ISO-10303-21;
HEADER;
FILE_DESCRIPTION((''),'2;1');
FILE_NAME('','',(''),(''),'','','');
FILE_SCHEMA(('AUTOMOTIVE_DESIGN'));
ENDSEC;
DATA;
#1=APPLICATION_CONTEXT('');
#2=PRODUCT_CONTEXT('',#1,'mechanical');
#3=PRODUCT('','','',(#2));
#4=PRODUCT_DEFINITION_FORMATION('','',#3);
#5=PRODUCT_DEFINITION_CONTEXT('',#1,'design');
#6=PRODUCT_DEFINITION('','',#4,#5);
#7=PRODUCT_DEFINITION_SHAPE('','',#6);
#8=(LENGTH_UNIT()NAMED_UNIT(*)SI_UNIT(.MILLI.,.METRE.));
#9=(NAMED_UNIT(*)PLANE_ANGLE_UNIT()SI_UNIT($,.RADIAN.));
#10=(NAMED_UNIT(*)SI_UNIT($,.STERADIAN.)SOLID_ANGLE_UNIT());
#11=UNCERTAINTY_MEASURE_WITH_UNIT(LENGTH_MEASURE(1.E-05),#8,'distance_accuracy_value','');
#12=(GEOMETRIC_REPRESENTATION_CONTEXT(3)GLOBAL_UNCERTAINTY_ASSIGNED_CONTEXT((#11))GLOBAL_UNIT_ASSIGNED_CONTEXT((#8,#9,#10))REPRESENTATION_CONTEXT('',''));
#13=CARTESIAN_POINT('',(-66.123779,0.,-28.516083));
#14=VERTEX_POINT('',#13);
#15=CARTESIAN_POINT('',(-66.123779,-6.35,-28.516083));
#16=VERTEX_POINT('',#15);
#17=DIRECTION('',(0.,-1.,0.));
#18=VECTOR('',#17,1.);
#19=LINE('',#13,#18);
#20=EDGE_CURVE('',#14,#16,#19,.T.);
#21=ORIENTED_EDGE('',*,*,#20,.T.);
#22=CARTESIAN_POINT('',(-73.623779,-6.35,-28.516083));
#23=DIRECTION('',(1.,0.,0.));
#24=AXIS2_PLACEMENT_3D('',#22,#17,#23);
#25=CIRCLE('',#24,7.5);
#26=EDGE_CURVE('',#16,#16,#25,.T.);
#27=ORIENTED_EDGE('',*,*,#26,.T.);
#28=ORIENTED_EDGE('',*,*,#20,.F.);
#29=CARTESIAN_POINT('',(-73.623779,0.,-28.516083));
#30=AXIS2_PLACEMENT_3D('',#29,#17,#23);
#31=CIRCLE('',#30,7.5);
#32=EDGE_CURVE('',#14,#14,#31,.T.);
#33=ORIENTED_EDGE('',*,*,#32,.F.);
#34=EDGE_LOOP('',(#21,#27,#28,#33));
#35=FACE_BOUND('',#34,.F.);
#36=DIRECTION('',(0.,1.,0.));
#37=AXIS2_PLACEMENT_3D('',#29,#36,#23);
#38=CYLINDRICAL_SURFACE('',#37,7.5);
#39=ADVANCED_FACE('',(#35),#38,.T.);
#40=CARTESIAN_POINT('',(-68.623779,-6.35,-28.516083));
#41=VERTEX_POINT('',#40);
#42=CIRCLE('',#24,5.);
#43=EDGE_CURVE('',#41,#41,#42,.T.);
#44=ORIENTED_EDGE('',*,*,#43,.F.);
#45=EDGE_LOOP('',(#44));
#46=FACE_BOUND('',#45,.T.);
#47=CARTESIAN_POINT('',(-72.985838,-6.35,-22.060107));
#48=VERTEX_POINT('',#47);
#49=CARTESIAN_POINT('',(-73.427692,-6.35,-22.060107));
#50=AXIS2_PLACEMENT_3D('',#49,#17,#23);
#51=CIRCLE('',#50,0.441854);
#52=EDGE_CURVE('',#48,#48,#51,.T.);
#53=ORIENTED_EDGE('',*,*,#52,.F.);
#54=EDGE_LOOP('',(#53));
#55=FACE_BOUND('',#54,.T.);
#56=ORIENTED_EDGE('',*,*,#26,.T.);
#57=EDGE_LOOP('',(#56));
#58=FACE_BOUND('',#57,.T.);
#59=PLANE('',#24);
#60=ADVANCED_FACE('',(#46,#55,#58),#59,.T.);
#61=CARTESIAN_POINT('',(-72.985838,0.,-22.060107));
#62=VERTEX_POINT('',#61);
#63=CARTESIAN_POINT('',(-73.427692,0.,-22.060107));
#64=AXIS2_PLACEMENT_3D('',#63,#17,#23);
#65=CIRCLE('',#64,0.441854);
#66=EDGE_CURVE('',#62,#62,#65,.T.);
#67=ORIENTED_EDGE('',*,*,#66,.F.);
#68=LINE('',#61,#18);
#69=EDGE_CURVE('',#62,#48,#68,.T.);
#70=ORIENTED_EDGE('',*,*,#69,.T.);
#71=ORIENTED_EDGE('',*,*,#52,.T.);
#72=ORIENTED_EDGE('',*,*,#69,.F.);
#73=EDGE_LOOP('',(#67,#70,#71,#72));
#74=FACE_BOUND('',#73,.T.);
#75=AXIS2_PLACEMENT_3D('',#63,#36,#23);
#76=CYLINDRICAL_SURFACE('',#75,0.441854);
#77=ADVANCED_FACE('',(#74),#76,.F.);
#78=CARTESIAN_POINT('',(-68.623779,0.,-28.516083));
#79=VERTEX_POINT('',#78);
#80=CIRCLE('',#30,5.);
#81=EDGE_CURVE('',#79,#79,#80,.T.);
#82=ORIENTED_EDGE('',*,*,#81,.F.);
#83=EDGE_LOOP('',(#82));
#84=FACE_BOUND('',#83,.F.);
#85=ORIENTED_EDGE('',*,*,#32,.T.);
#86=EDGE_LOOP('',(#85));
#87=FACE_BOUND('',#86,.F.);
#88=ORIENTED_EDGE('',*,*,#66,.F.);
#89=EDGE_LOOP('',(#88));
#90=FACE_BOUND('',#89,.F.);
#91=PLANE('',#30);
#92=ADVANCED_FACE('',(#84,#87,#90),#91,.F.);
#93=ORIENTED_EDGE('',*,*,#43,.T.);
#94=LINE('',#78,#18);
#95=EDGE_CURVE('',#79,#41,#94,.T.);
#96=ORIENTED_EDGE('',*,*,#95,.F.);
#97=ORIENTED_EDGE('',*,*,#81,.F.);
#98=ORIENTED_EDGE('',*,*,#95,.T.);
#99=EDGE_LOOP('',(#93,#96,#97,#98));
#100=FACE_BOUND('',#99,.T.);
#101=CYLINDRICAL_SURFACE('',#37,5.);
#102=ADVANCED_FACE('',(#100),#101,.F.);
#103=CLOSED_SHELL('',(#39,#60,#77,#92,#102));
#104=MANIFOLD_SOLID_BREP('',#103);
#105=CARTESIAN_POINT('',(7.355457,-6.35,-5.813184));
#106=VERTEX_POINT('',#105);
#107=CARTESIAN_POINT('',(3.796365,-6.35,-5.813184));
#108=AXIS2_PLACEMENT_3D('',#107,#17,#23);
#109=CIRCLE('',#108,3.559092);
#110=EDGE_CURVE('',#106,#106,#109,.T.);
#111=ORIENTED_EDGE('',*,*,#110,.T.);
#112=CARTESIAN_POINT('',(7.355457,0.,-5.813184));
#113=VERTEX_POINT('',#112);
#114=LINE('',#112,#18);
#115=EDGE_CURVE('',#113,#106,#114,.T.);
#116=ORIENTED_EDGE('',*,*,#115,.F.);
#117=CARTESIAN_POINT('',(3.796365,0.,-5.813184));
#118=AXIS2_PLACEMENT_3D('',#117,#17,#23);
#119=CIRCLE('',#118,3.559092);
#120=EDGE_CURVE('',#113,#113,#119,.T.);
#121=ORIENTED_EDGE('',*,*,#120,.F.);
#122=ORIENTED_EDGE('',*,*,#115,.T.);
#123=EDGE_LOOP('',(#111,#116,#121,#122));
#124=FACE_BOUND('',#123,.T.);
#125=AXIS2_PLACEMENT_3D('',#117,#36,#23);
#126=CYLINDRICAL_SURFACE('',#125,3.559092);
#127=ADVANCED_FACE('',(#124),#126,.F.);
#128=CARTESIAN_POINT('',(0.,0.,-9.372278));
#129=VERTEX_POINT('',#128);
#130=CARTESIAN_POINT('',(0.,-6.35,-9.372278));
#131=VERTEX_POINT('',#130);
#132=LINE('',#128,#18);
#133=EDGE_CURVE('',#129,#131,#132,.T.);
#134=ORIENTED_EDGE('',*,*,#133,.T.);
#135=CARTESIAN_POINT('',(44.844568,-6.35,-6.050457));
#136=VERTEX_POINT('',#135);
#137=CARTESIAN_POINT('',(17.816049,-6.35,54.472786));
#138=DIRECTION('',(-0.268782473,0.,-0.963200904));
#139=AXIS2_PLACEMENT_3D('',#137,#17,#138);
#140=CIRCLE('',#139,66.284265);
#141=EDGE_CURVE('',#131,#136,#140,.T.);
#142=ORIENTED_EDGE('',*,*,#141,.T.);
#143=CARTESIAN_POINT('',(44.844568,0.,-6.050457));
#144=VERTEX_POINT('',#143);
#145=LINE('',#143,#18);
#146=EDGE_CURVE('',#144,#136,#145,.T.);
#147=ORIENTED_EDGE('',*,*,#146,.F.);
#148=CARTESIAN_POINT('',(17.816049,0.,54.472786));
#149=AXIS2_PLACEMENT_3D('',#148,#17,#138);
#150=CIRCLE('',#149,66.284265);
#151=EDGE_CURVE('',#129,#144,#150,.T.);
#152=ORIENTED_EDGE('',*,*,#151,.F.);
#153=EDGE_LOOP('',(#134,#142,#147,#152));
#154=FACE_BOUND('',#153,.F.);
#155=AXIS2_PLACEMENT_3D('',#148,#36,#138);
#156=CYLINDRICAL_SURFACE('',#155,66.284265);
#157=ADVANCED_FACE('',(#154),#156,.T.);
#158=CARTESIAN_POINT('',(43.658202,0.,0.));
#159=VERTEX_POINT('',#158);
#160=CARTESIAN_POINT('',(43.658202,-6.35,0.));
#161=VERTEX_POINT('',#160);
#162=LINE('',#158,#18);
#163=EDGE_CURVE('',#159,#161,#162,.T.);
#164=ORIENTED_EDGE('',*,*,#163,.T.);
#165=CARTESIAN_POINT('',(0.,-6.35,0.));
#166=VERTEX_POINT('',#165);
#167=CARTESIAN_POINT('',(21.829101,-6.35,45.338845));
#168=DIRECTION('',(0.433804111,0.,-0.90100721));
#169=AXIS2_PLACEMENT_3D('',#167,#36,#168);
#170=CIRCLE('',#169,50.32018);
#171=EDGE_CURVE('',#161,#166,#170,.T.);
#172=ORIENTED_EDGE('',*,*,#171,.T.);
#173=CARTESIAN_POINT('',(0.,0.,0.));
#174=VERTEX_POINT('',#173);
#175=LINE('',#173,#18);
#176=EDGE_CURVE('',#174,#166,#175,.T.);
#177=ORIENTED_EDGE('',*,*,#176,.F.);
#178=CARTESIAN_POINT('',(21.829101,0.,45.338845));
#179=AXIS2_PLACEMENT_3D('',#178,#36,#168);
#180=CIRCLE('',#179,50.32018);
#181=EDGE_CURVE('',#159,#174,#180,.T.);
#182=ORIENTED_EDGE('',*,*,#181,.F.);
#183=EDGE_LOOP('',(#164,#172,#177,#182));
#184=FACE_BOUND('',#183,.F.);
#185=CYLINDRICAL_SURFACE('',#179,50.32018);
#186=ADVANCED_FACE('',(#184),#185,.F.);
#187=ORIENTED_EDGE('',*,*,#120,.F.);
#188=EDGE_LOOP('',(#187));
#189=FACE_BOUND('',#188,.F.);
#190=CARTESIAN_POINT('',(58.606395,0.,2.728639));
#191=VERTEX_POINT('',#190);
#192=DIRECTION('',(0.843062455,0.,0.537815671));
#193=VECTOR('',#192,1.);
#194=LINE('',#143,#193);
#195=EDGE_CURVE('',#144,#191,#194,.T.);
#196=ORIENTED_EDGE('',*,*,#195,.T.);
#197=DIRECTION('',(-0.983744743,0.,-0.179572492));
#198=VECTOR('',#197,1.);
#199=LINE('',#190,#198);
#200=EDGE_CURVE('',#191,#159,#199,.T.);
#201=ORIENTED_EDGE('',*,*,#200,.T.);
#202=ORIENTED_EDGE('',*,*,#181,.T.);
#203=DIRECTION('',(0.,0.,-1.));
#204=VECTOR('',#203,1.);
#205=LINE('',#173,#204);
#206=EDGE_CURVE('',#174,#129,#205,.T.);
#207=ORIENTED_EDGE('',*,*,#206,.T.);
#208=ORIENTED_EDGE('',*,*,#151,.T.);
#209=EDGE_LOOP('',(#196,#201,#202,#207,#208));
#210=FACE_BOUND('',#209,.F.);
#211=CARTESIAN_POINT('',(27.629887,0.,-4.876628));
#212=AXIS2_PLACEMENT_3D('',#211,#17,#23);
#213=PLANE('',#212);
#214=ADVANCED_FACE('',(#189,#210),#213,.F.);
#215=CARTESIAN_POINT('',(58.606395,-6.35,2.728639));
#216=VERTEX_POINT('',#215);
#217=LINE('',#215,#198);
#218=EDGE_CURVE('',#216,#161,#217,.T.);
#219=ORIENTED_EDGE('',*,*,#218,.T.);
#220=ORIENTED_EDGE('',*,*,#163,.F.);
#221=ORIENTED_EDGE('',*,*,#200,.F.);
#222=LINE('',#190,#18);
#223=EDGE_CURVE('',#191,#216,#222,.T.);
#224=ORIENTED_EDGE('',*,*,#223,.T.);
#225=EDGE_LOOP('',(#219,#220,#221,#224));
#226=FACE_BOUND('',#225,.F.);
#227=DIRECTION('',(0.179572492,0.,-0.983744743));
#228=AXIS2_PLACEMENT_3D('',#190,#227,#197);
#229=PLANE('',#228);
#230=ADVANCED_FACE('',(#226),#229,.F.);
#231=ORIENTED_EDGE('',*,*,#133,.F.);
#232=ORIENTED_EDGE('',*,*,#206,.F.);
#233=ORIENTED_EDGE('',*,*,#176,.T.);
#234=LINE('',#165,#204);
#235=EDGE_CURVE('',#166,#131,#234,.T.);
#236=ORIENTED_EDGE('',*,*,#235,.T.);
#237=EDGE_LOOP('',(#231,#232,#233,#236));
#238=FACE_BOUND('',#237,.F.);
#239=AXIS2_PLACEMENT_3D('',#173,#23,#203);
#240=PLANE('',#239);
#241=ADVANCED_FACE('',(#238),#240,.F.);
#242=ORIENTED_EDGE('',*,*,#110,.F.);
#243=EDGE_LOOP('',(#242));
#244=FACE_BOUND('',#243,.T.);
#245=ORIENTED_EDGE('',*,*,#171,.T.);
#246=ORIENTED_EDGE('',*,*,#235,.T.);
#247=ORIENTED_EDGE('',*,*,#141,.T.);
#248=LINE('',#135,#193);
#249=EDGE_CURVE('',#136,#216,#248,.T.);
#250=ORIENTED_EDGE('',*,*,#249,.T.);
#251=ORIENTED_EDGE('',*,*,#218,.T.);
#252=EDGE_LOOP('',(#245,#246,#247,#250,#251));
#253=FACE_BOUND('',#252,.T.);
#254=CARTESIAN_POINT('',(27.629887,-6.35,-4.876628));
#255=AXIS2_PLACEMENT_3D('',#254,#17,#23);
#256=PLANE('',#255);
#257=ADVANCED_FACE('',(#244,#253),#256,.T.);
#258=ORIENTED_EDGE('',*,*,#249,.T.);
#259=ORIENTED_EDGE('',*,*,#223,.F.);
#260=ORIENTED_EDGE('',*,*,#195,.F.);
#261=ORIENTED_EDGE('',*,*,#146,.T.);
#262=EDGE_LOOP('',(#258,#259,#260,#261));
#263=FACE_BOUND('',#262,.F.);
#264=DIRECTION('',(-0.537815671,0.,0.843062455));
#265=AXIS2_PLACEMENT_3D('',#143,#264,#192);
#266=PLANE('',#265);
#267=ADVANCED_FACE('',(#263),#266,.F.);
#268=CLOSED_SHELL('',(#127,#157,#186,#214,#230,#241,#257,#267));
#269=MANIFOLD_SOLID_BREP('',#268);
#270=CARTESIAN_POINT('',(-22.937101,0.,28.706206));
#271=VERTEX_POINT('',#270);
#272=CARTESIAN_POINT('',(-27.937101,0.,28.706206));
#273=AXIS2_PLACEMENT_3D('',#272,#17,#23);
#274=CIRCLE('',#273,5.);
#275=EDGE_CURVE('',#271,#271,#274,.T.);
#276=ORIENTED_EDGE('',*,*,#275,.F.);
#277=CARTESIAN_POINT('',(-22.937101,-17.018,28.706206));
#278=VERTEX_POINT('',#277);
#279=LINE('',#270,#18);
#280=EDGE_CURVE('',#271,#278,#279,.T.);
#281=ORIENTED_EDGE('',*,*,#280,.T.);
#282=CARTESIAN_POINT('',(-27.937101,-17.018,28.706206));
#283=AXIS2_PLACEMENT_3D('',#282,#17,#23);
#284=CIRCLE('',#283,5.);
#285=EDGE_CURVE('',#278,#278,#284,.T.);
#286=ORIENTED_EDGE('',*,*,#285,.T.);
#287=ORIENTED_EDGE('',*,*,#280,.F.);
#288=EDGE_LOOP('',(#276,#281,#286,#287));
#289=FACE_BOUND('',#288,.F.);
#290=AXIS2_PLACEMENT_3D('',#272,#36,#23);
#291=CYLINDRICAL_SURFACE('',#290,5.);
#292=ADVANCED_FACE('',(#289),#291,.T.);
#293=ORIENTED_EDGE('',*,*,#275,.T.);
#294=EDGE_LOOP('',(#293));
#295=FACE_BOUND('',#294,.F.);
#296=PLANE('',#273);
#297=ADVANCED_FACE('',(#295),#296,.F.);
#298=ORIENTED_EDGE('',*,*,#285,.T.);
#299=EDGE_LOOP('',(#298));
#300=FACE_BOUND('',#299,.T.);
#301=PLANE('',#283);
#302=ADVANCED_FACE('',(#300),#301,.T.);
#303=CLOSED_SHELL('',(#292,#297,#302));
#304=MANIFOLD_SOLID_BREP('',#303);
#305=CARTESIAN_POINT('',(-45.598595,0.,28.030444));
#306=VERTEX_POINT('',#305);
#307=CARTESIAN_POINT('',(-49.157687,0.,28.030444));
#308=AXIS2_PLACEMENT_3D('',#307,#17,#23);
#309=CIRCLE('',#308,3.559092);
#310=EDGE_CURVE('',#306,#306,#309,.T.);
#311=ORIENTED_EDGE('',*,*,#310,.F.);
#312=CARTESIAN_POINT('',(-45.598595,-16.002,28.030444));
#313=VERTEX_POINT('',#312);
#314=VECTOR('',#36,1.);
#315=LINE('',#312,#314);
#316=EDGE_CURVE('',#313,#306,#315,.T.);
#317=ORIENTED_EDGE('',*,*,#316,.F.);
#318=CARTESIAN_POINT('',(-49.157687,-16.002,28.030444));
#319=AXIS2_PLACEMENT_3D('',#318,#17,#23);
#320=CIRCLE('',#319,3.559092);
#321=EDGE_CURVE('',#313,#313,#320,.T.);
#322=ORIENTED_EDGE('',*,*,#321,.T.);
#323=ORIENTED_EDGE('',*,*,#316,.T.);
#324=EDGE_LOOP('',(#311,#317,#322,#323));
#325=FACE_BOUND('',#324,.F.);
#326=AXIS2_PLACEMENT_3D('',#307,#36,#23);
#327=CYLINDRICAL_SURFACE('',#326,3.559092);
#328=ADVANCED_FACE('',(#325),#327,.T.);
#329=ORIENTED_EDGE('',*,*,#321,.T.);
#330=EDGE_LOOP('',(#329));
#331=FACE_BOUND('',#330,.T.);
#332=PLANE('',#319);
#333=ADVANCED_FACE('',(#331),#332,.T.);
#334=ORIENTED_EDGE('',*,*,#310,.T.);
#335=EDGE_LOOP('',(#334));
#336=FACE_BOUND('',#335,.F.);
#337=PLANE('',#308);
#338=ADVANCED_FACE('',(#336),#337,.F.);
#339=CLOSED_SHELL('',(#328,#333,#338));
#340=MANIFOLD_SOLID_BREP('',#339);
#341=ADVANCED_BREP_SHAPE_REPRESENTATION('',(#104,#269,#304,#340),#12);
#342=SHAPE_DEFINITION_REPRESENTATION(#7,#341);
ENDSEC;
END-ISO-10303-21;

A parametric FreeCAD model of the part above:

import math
import FreeCAD as App
import Part
import Sketcher

V = App.Vector
Q = App.Units.Quantity

doc = App.newDocument("Part")
body = doc.addObject("PartDesign::Body", "Body")

# Sketch on XZ plane
sketch1 = body.newObject("Sketcher::SketchObject", "Sketch")
sketch1.AttachmentSupport = (doc.getObject("XZ_Plane"), [""])
sketch1.MapMode = "FlatFace"
sketch1.addGeometry([
    Part.ArcOfCircle(Part.Circle(V(21.829101, 45.338845, 0), V(0, 0, 1), 50.32018), math.radians(-115.709222), math.radians(-64.290778)),  # 0
    Part.LineSegment(V(0, 0, 0), V(0, -9.372278, 0)),  # 1
    Part.ArcOfCircle(Part.Circle(V(17.816049, 54.472786, 0), V(0, 0, 1), 66.284265), math.radians(-105.59183), math.radians(-65.935378)),  # 2
    Part.LineSegment(V(44.844568, -6.050457, 0), V(58.606395, 2.728639, 0)),  # 3
    Part.LineSegment(V(58.606395, 2.728639, 0), V(43.658202, 0, 0)),  # 4
    Part.Circle(V(3.796365, -5.813184, 0), V(0, 0, 1), 3.559092),  # 5
], False)
sketch1.addConstraint([
    Sketcher.Constraint("Coincident", 0, 1, 1, 1),
    Sketcher.Constraint("Coincident", 1, 2, 2, 1),
    Sketcher.Constraint("Coincident", 2, 2, 3, 1),
    Sketcher.Constraint("Coincident", 3, 2, 4, 1),
    Sketcher.Constraint("Coincident", 4, 2, 0, 2),
    Sketcher.Constraint("Vertical", 1),
    Sketcher.Constraint("Coincident", 0, 1, -1, 1),
    Sketcher.Constraint("PointOnObject", 4, 2, -1),
    Sketcher.Constraint("Radius", 0, 50.32018),
    Sketcher.Constraint("Diameter", 5, 7.118184),
    Sketcher.Constraint("Radius", 2, 66.284265),
    Sketcher.Constraint("DistanceX", -1, 1, 0, 3, 21.829101),
    Sketcher.Constraint("DistanceY", 1, 2, 1, 1, 9.372278),
    Sketcher.Constraint("DistanceX", -1, 1, 2, 3, 17.816049),
    Sketcher.Constraint("DistanceX", -1, 1, 2, 2, 44.844568),
    Sketcher.Constraint("DistanceY", -1, 1, 3, 2, 2.728639),
    Sketcher.Constraint("DistanceY", 5, 3, 0, 3, 51.152029),
    Sketcher.Constraint("DistanceX", 5, 3, 3, 2, 54.81003),
    Sketcher.Constraint("Distance", 3, 16.323615),
])
pad1 = body.newObject("PartDesign::Pad", "Pad")
pad1.Profile = sketch1
pad1.Length = Q("0.25 in")
body2 = doc.addObject("PartDesign::Body", "Body001")
body2.AllowCompound = True

# Sketch on XZ plane
sketch2 = body2.newObject("Sketcher::SketchObject", "Sketch001")
sketch2.AttachmentSupport = (doc.getObject("XZ_Plane001"), [""])
sketch2.MapMode = "FlatFace"
sketch2.addGeometry([
    Part.Circle(V(-49.157687, 28.030444, 0), V(0, 0, 1), 3.559092),
    Part.Circle(V(-73.623779, -28.516083, 0), V(0, 0, 1), 7.5),
    Part.Circle(V(-73.623779, -28.516083, 0), V(0, 0, 1), 5),
    Part.Circle(V(-73.427692, -22.060107, 0), V(0, 0, 1), 0.441854),
], False)
sketch2.addConstraint([
    Sketcher.Constraint("Coincident", 2, 3, 1, 3),
    Sketcher.Constraint("Diameter", 1, 15.0),
    Sketcher.Constraint("Diameter", 2, 10.0),
    Sketcher.Constraint("Diameter", 3, 0.883708),
    Sketcher.Constraint("Diameter", 0, 7.118184),
    Sketcher.Constraint("DistanceX", 1, 3, -1, 1, 73.623779),
    Sketcher.Constraint("DistanceX", 3, 3, -1, 1, 73.427692),
    Sketcher.Constraint("DistanceX", 1, 3, 0, 3, 24.466092),
    Sketcher.Constraint("DistanceY", 3, 3, 0, 3, 50.090551),
    Sketcher.Constraint("DistanceY", -1, 1, 0, 3, 28.030444),
    Sketcher.Constraint("DistanceY", 1, 3, -1, 1, 28.516083),
])
pad2 = body2.newObject("PartDesign::Pad", "Pad001")
pad2.Profile = sketch2
pad2.Length = Q("0.25 in")

# Sketch on XZ plane
sketch3 = body2.newObject("Sketcher::SketchObject", "Sketch002")
sketch3.AttachmentSupport = (doc.getObject("XZ_Plane001"), [""])
sketch3.MapMode = "FlatFace"
sketch3.addGeometry(Part.Circle(V(-49.157687, 28.030444, 0), V(0, 0, 1), 3.559092), False)
sketch3.addConstraint([
    Sketcher.Constraint("Diameter", 0, 7.118184),
    Sketcher.Constraint("DistanceX", 0, 3, -1, 1, 49.157687),
    Sketcher.Constraint("DistanceY", -1, 1, 0, 3, 28.030444),
])
pad3 = body2.newObject("PartDesign::Pad", "Pad002")
pad3.Profile = sketch3
pad3.Length = Q("0.63 in")
body3 = doc.addObject("PartDesign::Body", "Body002")

# Sketch on XZ plane
sketch4 = body3.newObject("Sketcher::SketchObject", "Sketch003")
sketch4.AttachmentSupport = (doc.getObject("XZ_Plane002"), [""])
sketch4.MapMode = "FlatFace"
sketch4.addGeometry(Part.Circle(V(-27.937101, 28.706206, 0), V(0, 0, 1), 5), False)
sketch4.addConstraint([
    Sketcher.Constraint("Diameter", 0, 10.0),
    Sketcher.Constraint("DistanceX", 0, 3, -1, 1, 27.937101),
    Sketcher.Constraint("DistanceY", -1, 1, 0, 3, 28.706206),
])
pad4 = body3.newObject("PartDesign::Pad", "Pad003")
pad4.Profile = sketch4
pad4.Length = Q("0.67 in")

doc.recompute()
